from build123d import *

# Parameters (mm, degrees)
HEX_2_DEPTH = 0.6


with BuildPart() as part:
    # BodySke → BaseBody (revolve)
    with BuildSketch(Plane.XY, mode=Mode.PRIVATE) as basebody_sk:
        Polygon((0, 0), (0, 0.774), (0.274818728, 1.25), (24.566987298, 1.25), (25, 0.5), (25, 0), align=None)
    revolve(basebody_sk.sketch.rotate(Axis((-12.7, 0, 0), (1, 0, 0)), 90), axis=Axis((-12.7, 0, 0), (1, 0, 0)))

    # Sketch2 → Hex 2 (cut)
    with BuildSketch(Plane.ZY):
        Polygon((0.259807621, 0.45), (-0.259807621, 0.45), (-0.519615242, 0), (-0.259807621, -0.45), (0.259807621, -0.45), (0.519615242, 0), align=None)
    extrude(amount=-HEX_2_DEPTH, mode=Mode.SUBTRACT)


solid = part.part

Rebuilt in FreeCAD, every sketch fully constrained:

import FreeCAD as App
import Part
import Sketcher

V = App.Vector
Q = App.Units.Quantity


def add_polygon(sketch, points):
    """Adds a closed chain of lines whose ends are joined by coincident constraints."""
    first, n = sketch.GeometryCount, len(points)
    for a, b in zip(points, points[1:] + points[:1]):
        sketch.addGeometry(Part.LineSegment(App.Vector(*a, 0), App.Vector(*b, 0)), False)
    for i in range(n):
        sketch.addConstraint(Sketcher.Constraint("Coincident", first + i, 2, first + (i + 1) % n, 1))

doc = App.newDocument("Part")
params = doc.addObject("Spreadsheet::Sheet", "Params")
for row, (alias, value) in enumerate([
    ("sketch1_width", "25 mm"),
    ("sketch1_height", "0.5 mm"),
    ("revolution_angle", "360 deg"),
    ("pocket1_length", "0.6 mm"),
], start=1):
    params.set(f"A{row}", alias)
    params.set(f"B{row}", "=" + value)
    params.setAlias(f"B{row}", alias)

body = doc.addObject("PartDesign::Body", "Body")

sketch1 = body.newObject("Sketcher::SketchObject", "Sketch")
sketch1.AttachmentSupport = (doc.getObject("XY_Plane"), [""])
sketch1.MapMode = "FlatFace"
add_polygon(sketch1, [(0, 0.774), (0, 0), (25, 0), (25, 0.5), (24.566987, 1.25), (0.274819, 1.25)])
sketch1.addConstraint([
    Sketcher.Constraint("Vertical", 0),
    Sketcher.Constraint("Horizontal", 1),
    Sketcher.Constraint("Vertical", 2),
    Sketcher.Constraint("Horizontal", 4),
    Sketcher.Constraint("Coincident", 0, 2, -1, 1),
    Sketcher.Constraint("DistanceX", 1, 1, 1, 2, 25.0),
    Sketcher.Constraint("Angle", 3, Q("120 deg")),
    Sketcher.Constraint("Angle", 5, Q("-120 deg")),
    Sketcher.Constraint("DistanceY", 2, 1, 2, 2, 0.5),
    Sketcher.Constraint("DistanceY", 0, 2, 0, 1, 0.774),
    Sketcher.Constraint("DistanceY", -1, 1, 3, 2, 1.25),
])
sketch1.setExpression("Constraints[11]", "Params.sketch1_width")
sketch1.setExpression("Constraints[14]", "Params.sketch1_height")
revolution = body.newObject("PartDesign::Revolution", "Revolution")
revolution.Profile = sketch1
revolution.ReferenceAxis = (sketch1, ["H_Axis"])
revolution.setExpression("Angle", "Params.revolution_angle")

sketch2 = body.newObject("Sketcher::SketchObject", "Sketch001")
sketch2.AttachmentSupport = (doc.getObject("YZ_Plane"), [""])
sketch2.MapMode = "FlatFace"
add_polygon(sketch2, [(0.45, 0.259808), (0.45, -0.259808), (0, -0.519615), (-0.45, -0.259808), (-0.45, 0.259808), (0, 0.519615)])
sketch2.addConstraint([
    Sketcher.Constraint("Vertical", 0),
    Sketcher.Constraint("Vertical", 3),
    Sketcher.Constraint("Symmetric", 0, 2, 3, 2, -1, 1),
    Sketcher.Constraint("Symmetric", 1, 2, 4, 2, -1, 1),
    Sketcher.Constraint("PointOnObject", 1, 2, -2),
    Sketcher.Constraint("Parallel", 2, 5),
    Sketcher.Constraint("Horizontal", 0, 2, 2, 2),
    Sketcher.Constraint("Angle", 1, Q("-150 deg")),
    Sketcher.Constraint("DistanceX", 2, 2, 0, 2, 0.9),
    Sketcher.Constraint("DistanceY", 0, 2, 0, 1, 0.519615),
])
pocket1 = body.newObject("PartDesign::Pocket", "Pocket")
pocket1.Profile = sketch2
pocket1.setExpression("Length", "Params.pocket1_length")
pocket1.Reversed = True

doc.recompute()
